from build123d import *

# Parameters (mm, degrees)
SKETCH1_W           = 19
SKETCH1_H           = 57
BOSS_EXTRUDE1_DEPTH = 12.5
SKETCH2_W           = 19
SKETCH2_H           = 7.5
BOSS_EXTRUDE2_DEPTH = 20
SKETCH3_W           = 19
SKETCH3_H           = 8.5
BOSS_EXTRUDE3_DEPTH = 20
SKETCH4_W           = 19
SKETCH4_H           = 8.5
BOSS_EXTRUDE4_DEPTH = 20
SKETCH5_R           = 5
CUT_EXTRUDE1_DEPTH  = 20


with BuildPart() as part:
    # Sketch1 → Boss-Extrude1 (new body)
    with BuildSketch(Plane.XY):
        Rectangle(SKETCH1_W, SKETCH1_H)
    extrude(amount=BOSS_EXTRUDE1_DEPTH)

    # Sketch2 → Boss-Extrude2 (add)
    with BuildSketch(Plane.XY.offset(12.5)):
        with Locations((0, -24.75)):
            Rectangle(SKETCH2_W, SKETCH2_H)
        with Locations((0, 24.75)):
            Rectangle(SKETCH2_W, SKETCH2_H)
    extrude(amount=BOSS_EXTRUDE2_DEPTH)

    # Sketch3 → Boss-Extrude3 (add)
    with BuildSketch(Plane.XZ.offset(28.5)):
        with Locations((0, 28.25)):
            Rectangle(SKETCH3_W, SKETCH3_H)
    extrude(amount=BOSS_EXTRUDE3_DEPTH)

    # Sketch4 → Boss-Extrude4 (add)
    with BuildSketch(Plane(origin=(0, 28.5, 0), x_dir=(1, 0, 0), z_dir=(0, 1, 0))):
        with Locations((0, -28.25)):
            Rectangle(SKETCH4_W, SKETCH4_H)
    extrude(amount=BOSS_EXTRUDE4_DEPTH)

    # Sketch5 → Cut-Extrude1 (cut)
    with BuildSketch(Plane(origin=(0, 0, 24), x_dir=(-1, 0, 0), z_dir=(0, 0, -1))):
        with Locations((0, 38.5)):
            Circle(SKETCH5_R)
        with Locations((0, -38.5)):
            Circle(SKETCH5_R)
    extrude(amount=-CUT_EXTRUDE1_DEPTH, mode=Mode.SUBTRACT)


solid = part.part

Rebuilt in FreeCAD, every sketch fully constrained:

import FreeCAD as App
import Part
import Sketcher

doc = App.newDocument("Part")
body = doc.addObject("PartDesign::Body", "Body")

# Sketch on XY plane
sketch1 = body.newObject("Sketcher::SketchObject", "Sketch")
sketch1.AttachmentSupport = (doc.getObject("XY_Plane"), [""])
sketch1.MapMode = "FlatFace"
sketch1.addGeometry(Part.LineSegment(App.Vector(-10, 28, 0), App.Vector(-10, -28, 0)), False)
sketch1.addGeometry(Part.LineSegment(App.Vector(-10, -28, 0), App.Vector(10, -28, 0)), False)
sketch1.addGeometry(Part.LineSegment(App.Vector(10, -28, 0), App.Vector(10, 28, 0)), False)
sketch1.addGeometry(Part.LineSegment(App.Vector(10, 28, 0), App.Vector(-10, 28, 0)), False)
sketch1.addConstraint(Sketcher.Constraint("Coincident", 0, 2, 1, 1))
sketch1.addConstraint(Sketcher.Constraint("Coincident", 1, 2, 2, 1))
sketch1.addConstraint(Sketcher.Constraint("Coincident", 2, 2, 3, 1))
sketch1.addConstraint(Sketcher.Constraint("Coincident", 3, 2, 0, 1))
sketch1.addConstraint(Sketcher.Constraint("Vertical", 0))
sketch1.addConstraint(Sketcher.Constraint("Horizontal", 1))
sketch1.addConstraint(Sketcher.Constraint("Vertical", 2))
sketch1.addConstraint(Sketcher.Constraint("Horizontal", 3))
sketch1.addConstraint(Sketcher.Constraint("Symmetric", 0, 2, 2, 2, -1, 1))
sketch1.addConstraint(Sketcher.Constraint("DistanceX", 1, 1, 1, 2, 19.0))
sketch1.addConstraint(Sketcher.Constraint("DistanceY", 0, 2, 0, 1, 57.0))
pad1 = body.newObject("PartDesign::Pad", "Pad")
pad1.Profile = sketch1
pad1.Length = 12.5

# Sketch on XY plane
sketch2 = body.newObject("Sketcher::SketchObject", "Sketch001")
sketch2.AttachmentSupport = (doc.getObject("XY_Plane"), [""])
sketch2.MapMode = "FlatFace"
sketch2.AttachmentOffset = App.Placement(App.Vector(0, 0, 12.5), App.Rotation())
sketch2.addGeometry(Part.LineSegment(App.Vector(-10, -21, 0), App.Vector(-10, -28, 0)), False)
sketch2.addGeometry(Part.LineSegment(App.Vector(-10, -28, 0), App.Vector(10, -28, 0)), False)
sketch2.addGeometry(Part.LineSegment(App.Vector(10, -28, 0), App.Vector(10, -21, 0)), False)
sketch2.addGeometry(Part.LineSegment(App.Vector(10, -21, 0), App.Vector(-10, -21, 0)), False)
sketch2.addGeometry(Part.LineSegment(App.Vector(-10, 28, 0), App.Vector(-10, 21, 0)), False)
sketch2.addGeometry(Part.LineSegment(App.Vector(-10, 21, 0), App.Vector(10, 21, 0)), False)
sketch2.addGeometry(Part.LineSegment(App.Vector(10, 21, 0), App.Vector(10, 28, 0)), False)
sketch2.addGeometry(Part.LineSegment(App.Vector(10, 28, 0), App.Vector(-10, 28, 0)), False)
sketch2.addConstraint(Sketcher.Constraint("Coincident", 0, 2, 1, 1))
sketch2.addConstraint(Sketcher.Constraint("Coincident", 1, 2, 2, 1))
sketch2.addConstraint(Sketcher.Constraint("Coincident", 2, 2, 3, 1))
sketch2.addConstraint(Sketcher.Constraint("Coincident", 3, 2, 0, 1))
sketch2.addConstraint(Sketcher.Constraint("Coincident", 4, 2, 5, 1))
sketch2.addConstraint(Sketcher.Constraint("Coincident", 5, 2, 6, 1))
sketch2.addConstraint(Sketcher.Constraint("Coincident", 6, 2, 7, 1))
sketch2.addConstraint(Sketcher.Constraint("Coincident", 7, 2, 4, 1))
sketch2.addConstraint(Sketcher.Constraint("Vertical", 0))
sketch2.addConstraint(Sketcher.Constraint("Horizontal", 1))
sketch2.addConstraint(Sketcher.Constraint("Vertical", 2))
sketch2.addConstraint(Sketcher.Constraint("Horizontal", 3))
sketch2.addConstraint(Sketcher.Constraint("Vertical", 4))
sketch2.addConstraint(Sketcher.Constraint("Horizontal", 5))
sketch2.addConstraint(Sketcher.Constraint("Vertical", 6))
sketch2.addConstraint(Sketcher.Constraint("Horizontal", 7))
sketch2.addConstraint(Sketcher.Constraint("Symmetric", 2, 2, 4, 2, -1, 1))
sketch2.addConstraint(Sketcher.Constraint("Symmetric", 0, 2, 6, 2, -1, 1))
sketch2.addConstraint(Sketcher.Constraint("Vertical", 3, 2, 4, 2))
sketch2.addConstraint(Sketcher.Constraint("DistanceX", 1, 1, 1, 2, 19.0))
sketch2.addConstraint(Sketcher.Constraint("DistanceY", 0, 2, 0, 1, 7.5))
sketch2.addConstraint(Sketcher.Constraint("DistanceY", 2, 2, -1, 1, 21.0))
pad2 = body.newObject("PartDesign::Pad", "Pad001")
pad2.Profile = sketch2
pad2.Length = 20

# Sketch on XZ plane
sketch3 = body.newObject("Sketcher::SketchObject", "Sketch002")
sketch3.AttachmentSupport = (doc.getObject("XZ_Plane"), [""])
sketch3.MapMode = "FlatFace"
sketch3.AttachmentOffset = App.Placement(App.Vector(0, 0, 28.5), App.Rotation())
sketch3.addGeometry(Part.LineSegment(App.Vector(-10, 32, 0), App.Vector(-10, 24, 0)), False)
sketch3.addGeometry(Part.LineSegment(App.Vector(-10, 24, 0), App.Vector(10, 24, 0)), False)
sketch3.addGeometry(Part.LineSegment(App.Vector(10, 24, 0), App.Vector(10, 32, 0)), False)
sketch3.addGeometry(Part.LineSegment(App.Vector(10, 32, 0), App.Vector(-10, 32, 0)), False)
sketch3.addConstraint(Sketcher.Constraint("Coincident", 0, 2, 1, 1))
sketch3.addConstraint(Sketcher.Constraint("Coincident", 1, 2, 2, 1))
sketch3.addConstraint(Sketcher.Constraint("Coincident", 2, 2, 3, 1))
sketch3.addConstraint(Sketcher.Constraint("Coincident", 3, 2, 0, 1))
sketch3.addConstraint(Sketcher.Constraint("Vertical", 0))
sketch3.addConstraint(Sketcher.Constraint("Horizontal", 1))
sketch3.addConstraint(Sketcher.Constraint("Vertical", 2))
sketch3.addConstraint(Sketcher.Constraint("Horizontal", 3))
sketch3.addConstraint(Sketcher.Constraint("DistanceX", 1, 1, 1, 2, 19.0))
sketch3.addConstraint(Sketcher.Constraint("DistanceY", 0, 2, 0, 1, 8.5))
sketch3.addConstraint(Sketcher.Constraint("DistanceY", -1, 1, 0, 2, 24.0))
sketch3.addConstraint(Sketcher.Constraint("DistanceX", 0, 2, -1, 1, 9.5))
pad3 = body.newObject("PartDesign::Pad", "Pad002")
pad3.Profile = sketch3
pad3.Length = 20

# Sketch on XZ plane
sketch4 = body.newObject("Sketcher::SketchObject", "Sketch003")
sketch4.AttachmentSupport = (doc.getObject("XZ_Plane"), [""])
sketch4.MapMode = "FlatFace"
sketch4.AttachmentOffset = App.Placement(App.Vector(0, 0, -28.5), App.Rotation())
sketch4.addGeometry(Part.LineSegment(App.Vector(-10, 24, 0), App.Vector(-10, 32, 0)), False)
sketch4.addGeometry(Part.LineSegment(App.Vector(-10, 32, 0), App.Vector(10, 32, 0)), False)
sketch4.addGeometry(Part.LineSegment(App.Vector(10, 32, 0), App.Vector(10, 24, 0)), False)
sketch4.addGeometry(Part.LineSegment(App.Vector(10, 24, 0), App.Vector(-10, 24, 0)), False)
sketch4.addConstraint(Sketcher.Constraint("Coincident", 0, 2, 1, 1))
sketch4.addConstraint(Sketcher.Constraint("Coincident", 1, 2, 2, 1))
sketch4.addConstraint(Sketcher.Constraint("Coincident", 2, 2, 3, 1))
sketch4.addConstraint(Sketcher.Constraint("Coincident", 3, 2, 0, 1))
sketch4.addConstraint(Sketcher.Constraint("Vertical", 0))
sketch4.addConstraint(Sketcher.Constraint("Horizontal", 1))
sketch4.addConstraint(Sketcher.Constraint("Vertical", 2))
sketch4.addConstraint(Sketcher.Constraint("Horizontal", 3))
sketch4.addConstraint(Sketcher.Constraint("DistanceX", 1, 1, 1, 2, 19.0))
sketch4.addConstraint(Sketcher.Constraint("DistanceY", 0, 1, 0, 2, 8.5))
sketch4.addConstraint(Sketcher.Constraint("DistanceY", -1, 1, 2, 2, 24.0))
sketch4.addConstraint(Sketcher.Constraint("DistanceX", 0, 2, -1, 1, 9.5))
pad4 = body.newObject("PartDesign::Pad", "Pad003")
pad4.Profile = sketch4
pad4.Length = 20
pad4.Reversed = True

# Sketch on XY plane
sketch5 = body.newObject("Sketcher::SketchObject", "Sketch004")
sketch5.AttachmentSupport = (doc.getObject("XY_Plane"), [""])
sketch5.MapMode = "FlatFace"
sketch5.AttachmentOffset = App.Placement(App.Vector(0, 0, 24), App.Rotation())
sketch5.addGeometry(Part.Circle(App.Vector(0, 38, 0), App.Vector(0, 0, 1), 5), False)
sketch5.addGeometry(Part.Circle(App.Vector(0, -38, 0), App.Vector(0, 0, 1), 5), False)
sketch5.addConstraint(Sketcher.Constraint("Equal", 0, 1))
sketch5.addConstraint(Sketcher.Constraint("Symmetric", 0, 3, 1, 3, -1, 1))
sketch5.addConstraint(Sketcher.Constraint("PointOnObject", 0, 3, -2))
sketch5.addConstraint(Sketcher.Constraint("Diameter", 0, 10.0))
sketch5.addConstraint(Sketcher.Constraint("DistanceY", 1, 3, 0, 3, 77.0))
pocket1 = body.newObject("PartDesign::Pocket", "Pocket")
pocket1.Profile = sketch5
pocket1.Length = 20
pocket1.Reversed = True

doc.recompute()
